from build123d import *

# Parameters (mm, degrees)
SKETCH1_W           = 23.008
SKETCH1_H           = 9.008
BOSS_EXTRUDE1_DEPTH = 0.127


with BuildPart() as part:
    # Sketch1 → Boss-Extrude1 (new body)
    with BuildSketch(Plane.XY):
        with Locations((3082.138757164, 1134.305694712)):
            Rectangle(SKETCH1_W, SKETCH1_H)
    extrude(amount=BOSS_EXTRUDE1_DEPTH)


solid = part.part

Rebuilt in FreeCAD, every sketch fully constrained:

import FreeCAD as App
import Part
import Sketcher
Q = App.Units.Quantity


def add_polygon(sketch, points):
    """Adds a closed chain of lines whose ends are joined by coincident constraints."""
    first, n = sketch.GeometryCount, len(points)
    for a, b in zip(points, points[1:] + points[:1]):
        sketch.addGeometry(Part.LineSegment(App.Vector(*a, 0), App.Vector(*b, 0)), False)
    for i in range(n):
        sketch.addConstraint(Sketcher.Constraint("Coincident", first + i, 2, first + (i + 1) % n, 1))

doc = App.newDocument("Part")
params = doc.addObject("Spreadsheet::Sheet", "Params")
for row, (alias, value) in enumerate([
    ("pad1_length", "0.005 in"),
], start=1):
    params.set(f"A{row}", alias)
    params.set(f"B{row}", "=" + value)
    params.setAlias(f"B{row}", alias)

body = doc.addObject("PartDesign::Body", "Body")

sketch1 = doc.addObject("Sketcher::SketchObject", "Sketch")
body.addObject(sketch1)
sketch1.AttachmentSupport = (doc.XY_Plane, [""])
sketch1.MapMode = "FlatFace"
add_polygon(sketch1, [(3070.634757, 1138.809695), (3070.634757, 1129.801695), (3093.642757, 1129.801695), (3093.642757, 1138.809695)])
sketch1.addConstraint(Sketcher.Constraint("Vertical", 0))
sketch1.addConstraint(Sketcher.Constraint("Horizontal", 1))
sketch1.addConstraint(Sketcher.Constraint("Vertical", 2))
sketch1.addConstraint(Sketcher.Constraint("Horizontal", 3))
sketch1.addConstraint(Sketcher.Constraint("DistanceX", 1, 1, 1, 2, Q("23.008 mm")))
sketch1.addConstraint(Sketcher.Constraint("DistanceY", 0, 2, 0, 1, Q("9.008 mm")))
sketch1.addConstraint(Sketcher.Constraint("DistanceX", -1, 1, 0, 2, Q("3070.634757 mm")))
sketch1.addConstraint(Sketcher.Constraint("DistanceY", -1, 1, 0, 2, Q("1129.801695 mm")))
pad1 = doc.addObject("PartDesign::Pad", "Pad")
body.addObject(pad1)
pad1.Profile = sketch1
pad1.setExpression("Length", "Params.pad1_length")

doc.recompute()
